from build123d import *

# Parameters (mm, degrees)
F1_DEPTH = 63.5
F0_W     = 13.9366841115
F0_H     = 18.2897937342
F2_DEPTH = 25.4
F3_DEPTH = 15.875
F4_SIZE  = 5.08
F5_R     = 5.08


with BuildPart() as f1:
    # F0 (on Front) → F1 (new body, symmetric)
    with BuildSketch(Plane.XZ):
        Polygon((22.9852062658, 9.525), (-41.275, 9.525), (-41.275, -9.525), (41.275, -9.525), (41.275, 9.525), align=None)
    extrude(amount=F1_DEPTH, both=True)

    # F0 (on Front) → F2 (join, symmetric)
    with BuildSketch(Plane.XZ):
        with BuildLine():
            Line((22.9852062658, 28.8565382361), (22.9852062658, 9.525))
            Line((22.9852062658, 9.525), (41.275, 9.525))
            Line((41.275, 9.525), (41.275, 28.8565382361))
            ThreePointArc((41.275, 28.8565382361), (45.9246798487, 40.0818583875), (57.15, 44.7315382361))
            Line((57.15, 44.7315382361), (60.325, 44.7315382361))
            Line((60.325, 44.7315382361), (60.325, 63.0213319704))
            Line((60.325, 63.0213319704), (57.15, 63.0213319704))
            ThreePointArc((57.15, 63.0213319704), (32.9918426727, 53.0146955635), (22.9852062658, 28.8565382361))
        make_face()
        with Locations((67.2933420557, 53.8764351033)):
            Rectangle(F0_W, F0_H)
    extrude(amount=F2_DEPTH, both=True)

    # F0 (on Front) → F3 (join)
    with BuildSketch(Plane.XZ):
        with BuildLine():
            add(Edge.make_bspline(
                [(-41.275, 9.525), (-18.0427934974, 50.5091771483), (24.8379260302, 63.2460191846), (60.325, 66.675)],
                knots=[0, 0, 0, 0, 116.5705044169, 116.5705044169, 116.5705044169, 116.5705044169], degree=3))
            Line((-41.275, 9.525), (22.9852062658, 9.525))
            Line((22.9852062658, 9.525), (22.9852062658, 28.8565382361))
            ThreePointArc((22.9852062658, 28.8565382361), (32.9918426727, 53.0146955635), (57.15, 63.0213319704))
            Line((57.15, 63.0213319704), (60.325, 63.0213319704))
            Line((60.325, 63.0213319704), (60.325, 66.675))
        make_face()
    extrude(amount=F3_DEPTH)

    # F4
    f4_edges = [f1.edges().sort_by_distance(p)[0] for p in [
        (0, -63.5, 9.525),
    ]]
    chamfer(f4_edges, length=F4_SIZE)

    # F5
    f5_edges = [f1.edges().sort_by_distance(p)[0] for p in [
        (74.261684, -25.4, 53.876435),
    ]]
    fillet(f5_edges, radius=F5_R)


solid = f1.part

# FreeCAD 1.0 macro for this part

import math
import FreeCAD as App
import Part
import Sketcher

V = App.Vector
Q = App.Units.Quantity


def edges_at(feature, points):
    """Names of the edges that pass closest to the given points."""
    edges = feature.Shape.Edges
    near = lambda p: min(range(len(edges)), key=lambda i: edges[i].distToShape(Part.Vertex(*p))[0])
    return sorted({f"Edge{near(p) + 1}" for p in points})


def add_polygon(sketch, points):
    """Adds a closed chain of lines whose ends are joined by coincident constraints."""
    first, n = sketch.GeometryCount, len(points)
    for a, b in zip(points, points[1:] + points[:1]):
        sketch.addGeometry(Part.LineSegment(App.Vector(*a, 0), App.Vector(*b, 0)), False)
    for i in range(n):
        sketch.addConstraint(Sketcher.Constraint("Coincident", first + i, 2, first + (i + 1) % n, 1))

doc = App.newDocument("Part")
body = doc.addObject("PartDesign::Body", "Body")

sketch1 = body.newObject("Sketcher::SketchObject", "Sketch")
sketch1.AttachmentSupport = (doc.getObject("XZ_Plane"), [""])
sketch1.MapMode = "FlatFace"
add_polygon(sketch1, [(-41, 10), (-41, -10), (41, -10), (41, 10)])
sketch1.addConstraint([
    Sketcher.Constraint("Vertical", 0),
    Sketcher.Constraint("Horizontal", 1),
    Sketcher.Constraint("Vertical", 2),
    Sketcher.Constraint("Horizontal", 3),
    Sketcher.Constraint("Symmetric", 0, 2, 2, 2, -1, 1),
    Sketcher.Constraint("DistanceX", 1, 1, 1, 2, Q("3.25 in")),
    Sketcher.Constraint("DistanceY", 0, 2, 0, 1, Q("0.75 in")),
])
pad1 = body.newObject("PartDesign::Pad", "Pad")
pad1.Profile = sketch1
pad1.Length = Q("5 in")
pad1.Midplane = True

sketch2 = body.newObject("Sketcher::SketchObject", "Sketch001")
sketch2.AttachmentSupport = (doc.getObject("XZ_Plane"), [""])
sketch2.MapMode = "FlatFace"
sketch2.addGeometry([
    Part.LineSegment(V(23, 28.9, 0), V(23, 9.5, 0)),
    Part.LineSegment(V(23, 9.5, 0), V(41.3, 9.5, 0)),
    Part.LineSegment(V(41.3, 9.5, 0), V(41.3, 28.9, 0)),
    Part.ArcOfCircle(Part.Circle(V(57.1, 28.9, 0), V(0, 0, 1), 15.9), math.radians(90), math.radians(180)),
    Part.LineSegment(V(57.1, 44.7, 0), V(60.3, 44.7, 0)),
    Part.LineSegment(V(60.3, 44.7, 0), V(74.3, 44.7, 0)),
    Part.LineSegment(V(74.3, 44.7, 0), V(74.3, 63, 0)),
    Part.LineSegment(V(74.3, 63, 0), V(57.1, 63, 0)),
    Part.ArcOfCircle(Part.Circle(V(57.1, 28.9, 0), V(0, 0, 1), 34.2), math.radians(90), math.radians(180)),
], False)
sketch2.addConstraint([
    Sketcher.Constraint("Coincident", 0, 2, 1, 1),
    Sketcher.Constraint("Coincident", 1, 2, 2, 1),
    Sketcher.Constraint("Tangent", 2, 2, 3, 2),
    Sketcher.Constraint("Tangent", 3, 1, 4, 1),
    Sketcher.Constraint("Coincident", 4, 2, 5, 1),
    Sketcher.Constraint("Coincident", 5, 2, 6, 1),
    Sketcher.Constraint("Coincident", 6, 2, 7, 1),
    Sketcher.Constraint("Tangent", 7, 2, 8, 1),
    Sketcher.Constraint("Tangent", 8, 2, 0, 1),
    Sketcher.Constraint("Vertical", 0),
    Sketcher.Constraint("Horizontal", 1),
    Sketcher.Constraint("Vertical", 2),
    Sketcher.Constraint("Horizontal", 4),
    Sketcher.Constraint("Horizontal", 5),
    Sketcher.Constraint("Vertical", 6),
    Sketcher.Constraint("Horizontal", 7),
    Sketcher.Constraint("Coincident", 8, 3, 3, 3),
    Sketcher.Constraint("Radius", 3, Q("0.625 in")),
    Sketcher.Constraint("DistanceX", 4, 1, 4, 2, Q("0.125 in")),
    Sketcher.Constraint("DistanceX", -1, 1, 3, 3, Q("2.25 in")),
    Sketcher.Constraint("DistanceY", -1, 1, 0, 2, Q("0.375 in")),
    Sketcher.Constraint("Radius", 8, Q("34.164794 mm")),
    Sketcher.Constraint("DistanceY", 0, 2, 0, 1, Q("19.331538 mm")),
    Sketcher.Constraint("DistanceX", 5, 1, 5, 2, Q("13.936684 mm")),
])
pad2 = body.newObject("PartDesign::Pad", "Pad001")
pad2.Profile = sketch2
pad2.Length = Q("2 in")
pad2.Midplane = True

sketch3 = body.newObject("Sketcher::SketchObject", "Sketch002")
sketch3.AttachmentSupport = (doc.getObject("XZ_Plane"), [""])
sketch3.MapMode = "FlatFace"
sketch3.addGeometry([
    Part.BSplineCurve([V(-41.275, 9.525, 0), V(-18.042793, 50.509177, 0), V(24.837926, 63.246019, 0), V(60.325, 66.675, 0)], [4, 4], [0, 116.570504417], False, 3, [1, 1, 1, 1], False),
    Part.LineSegment(V(-41.275, 9.525, 0), V(22.985206, 9.525, 0)),
    Part.LineSegment(V(22.985206, 9.525, 0), V(22.985206, 28.856538, 0)),
    Part.ArcOfCircle(Part.Circle(V(57.15, 28.856538, 0), V(0, 0, 1), 34.164794), math.radians(90), math.radians(180)),
    Part.LineSegment(V(57.15, 63.021332, 0), V(60.325, 63.021332, 0)),
    Part.LineSegment(V(60.325, 63.021332, 0), V(60.325, 66.675, 0)),
], False)
sketch3.addConstraint([
    Sketcher.Constraint("Block", 0),
    Sketcher.Constraint("Coincident", 0, 1, 1, 1),
    Sketcher.Constraint("Coincident", 1, 2, 2, 1),
    Sketcher.Constraint("Tangent", 2, 2, 3, 2),
    Sketcher.Constraint("Tangent", 3, 1, 4, 1),
    Sketcher.Constraint("Coincident", 4, 2, 5, 1),
    Sketcher.Constraint("Coincident", 5, 2, 0, 2),
    Sketcher.Constraint("Horizontal", 1),
    Sketcher.Constraint("Vertical", 2),
    Sketcher.Constraint("Horizontal", 4),
    Sketcher.Constraint("Vertical", 5),
    Sketcher.Constraint("DistanceX", 4, 1, 4, 2, Q("0.125 in")),
    Sketcher.Constraint("Radius", 3, Q("34.164794 mm")),
    Sketcher.Constraint("DistanceY", 2, 1, 2, 2, Q("19.331538 mm")),
])
pad3 = body.newObject("PartDesign::Pad", "Pad002")
pad3.Profile = sketch3
pad3.Length = Q("0.625 in")
doc.recompute()

chamfer = body.newObject("PartDesign::Chamfer", "Chamfer")
chamfer.Base = (pad3, edges_at(pad3, [(0, -63.5, 9.525)]))
chamfer.Size = Q("0.2 in")
doc.recompute()

fillet = body.newObject("PartDesign::Fillet", "Fillet")
fillet.Base = (chamfer, edges_at(chamfer, [(74.262, -25.4, 53.876)]))
fillet.Radius = Q("0.2 in")

doc.recompute()
